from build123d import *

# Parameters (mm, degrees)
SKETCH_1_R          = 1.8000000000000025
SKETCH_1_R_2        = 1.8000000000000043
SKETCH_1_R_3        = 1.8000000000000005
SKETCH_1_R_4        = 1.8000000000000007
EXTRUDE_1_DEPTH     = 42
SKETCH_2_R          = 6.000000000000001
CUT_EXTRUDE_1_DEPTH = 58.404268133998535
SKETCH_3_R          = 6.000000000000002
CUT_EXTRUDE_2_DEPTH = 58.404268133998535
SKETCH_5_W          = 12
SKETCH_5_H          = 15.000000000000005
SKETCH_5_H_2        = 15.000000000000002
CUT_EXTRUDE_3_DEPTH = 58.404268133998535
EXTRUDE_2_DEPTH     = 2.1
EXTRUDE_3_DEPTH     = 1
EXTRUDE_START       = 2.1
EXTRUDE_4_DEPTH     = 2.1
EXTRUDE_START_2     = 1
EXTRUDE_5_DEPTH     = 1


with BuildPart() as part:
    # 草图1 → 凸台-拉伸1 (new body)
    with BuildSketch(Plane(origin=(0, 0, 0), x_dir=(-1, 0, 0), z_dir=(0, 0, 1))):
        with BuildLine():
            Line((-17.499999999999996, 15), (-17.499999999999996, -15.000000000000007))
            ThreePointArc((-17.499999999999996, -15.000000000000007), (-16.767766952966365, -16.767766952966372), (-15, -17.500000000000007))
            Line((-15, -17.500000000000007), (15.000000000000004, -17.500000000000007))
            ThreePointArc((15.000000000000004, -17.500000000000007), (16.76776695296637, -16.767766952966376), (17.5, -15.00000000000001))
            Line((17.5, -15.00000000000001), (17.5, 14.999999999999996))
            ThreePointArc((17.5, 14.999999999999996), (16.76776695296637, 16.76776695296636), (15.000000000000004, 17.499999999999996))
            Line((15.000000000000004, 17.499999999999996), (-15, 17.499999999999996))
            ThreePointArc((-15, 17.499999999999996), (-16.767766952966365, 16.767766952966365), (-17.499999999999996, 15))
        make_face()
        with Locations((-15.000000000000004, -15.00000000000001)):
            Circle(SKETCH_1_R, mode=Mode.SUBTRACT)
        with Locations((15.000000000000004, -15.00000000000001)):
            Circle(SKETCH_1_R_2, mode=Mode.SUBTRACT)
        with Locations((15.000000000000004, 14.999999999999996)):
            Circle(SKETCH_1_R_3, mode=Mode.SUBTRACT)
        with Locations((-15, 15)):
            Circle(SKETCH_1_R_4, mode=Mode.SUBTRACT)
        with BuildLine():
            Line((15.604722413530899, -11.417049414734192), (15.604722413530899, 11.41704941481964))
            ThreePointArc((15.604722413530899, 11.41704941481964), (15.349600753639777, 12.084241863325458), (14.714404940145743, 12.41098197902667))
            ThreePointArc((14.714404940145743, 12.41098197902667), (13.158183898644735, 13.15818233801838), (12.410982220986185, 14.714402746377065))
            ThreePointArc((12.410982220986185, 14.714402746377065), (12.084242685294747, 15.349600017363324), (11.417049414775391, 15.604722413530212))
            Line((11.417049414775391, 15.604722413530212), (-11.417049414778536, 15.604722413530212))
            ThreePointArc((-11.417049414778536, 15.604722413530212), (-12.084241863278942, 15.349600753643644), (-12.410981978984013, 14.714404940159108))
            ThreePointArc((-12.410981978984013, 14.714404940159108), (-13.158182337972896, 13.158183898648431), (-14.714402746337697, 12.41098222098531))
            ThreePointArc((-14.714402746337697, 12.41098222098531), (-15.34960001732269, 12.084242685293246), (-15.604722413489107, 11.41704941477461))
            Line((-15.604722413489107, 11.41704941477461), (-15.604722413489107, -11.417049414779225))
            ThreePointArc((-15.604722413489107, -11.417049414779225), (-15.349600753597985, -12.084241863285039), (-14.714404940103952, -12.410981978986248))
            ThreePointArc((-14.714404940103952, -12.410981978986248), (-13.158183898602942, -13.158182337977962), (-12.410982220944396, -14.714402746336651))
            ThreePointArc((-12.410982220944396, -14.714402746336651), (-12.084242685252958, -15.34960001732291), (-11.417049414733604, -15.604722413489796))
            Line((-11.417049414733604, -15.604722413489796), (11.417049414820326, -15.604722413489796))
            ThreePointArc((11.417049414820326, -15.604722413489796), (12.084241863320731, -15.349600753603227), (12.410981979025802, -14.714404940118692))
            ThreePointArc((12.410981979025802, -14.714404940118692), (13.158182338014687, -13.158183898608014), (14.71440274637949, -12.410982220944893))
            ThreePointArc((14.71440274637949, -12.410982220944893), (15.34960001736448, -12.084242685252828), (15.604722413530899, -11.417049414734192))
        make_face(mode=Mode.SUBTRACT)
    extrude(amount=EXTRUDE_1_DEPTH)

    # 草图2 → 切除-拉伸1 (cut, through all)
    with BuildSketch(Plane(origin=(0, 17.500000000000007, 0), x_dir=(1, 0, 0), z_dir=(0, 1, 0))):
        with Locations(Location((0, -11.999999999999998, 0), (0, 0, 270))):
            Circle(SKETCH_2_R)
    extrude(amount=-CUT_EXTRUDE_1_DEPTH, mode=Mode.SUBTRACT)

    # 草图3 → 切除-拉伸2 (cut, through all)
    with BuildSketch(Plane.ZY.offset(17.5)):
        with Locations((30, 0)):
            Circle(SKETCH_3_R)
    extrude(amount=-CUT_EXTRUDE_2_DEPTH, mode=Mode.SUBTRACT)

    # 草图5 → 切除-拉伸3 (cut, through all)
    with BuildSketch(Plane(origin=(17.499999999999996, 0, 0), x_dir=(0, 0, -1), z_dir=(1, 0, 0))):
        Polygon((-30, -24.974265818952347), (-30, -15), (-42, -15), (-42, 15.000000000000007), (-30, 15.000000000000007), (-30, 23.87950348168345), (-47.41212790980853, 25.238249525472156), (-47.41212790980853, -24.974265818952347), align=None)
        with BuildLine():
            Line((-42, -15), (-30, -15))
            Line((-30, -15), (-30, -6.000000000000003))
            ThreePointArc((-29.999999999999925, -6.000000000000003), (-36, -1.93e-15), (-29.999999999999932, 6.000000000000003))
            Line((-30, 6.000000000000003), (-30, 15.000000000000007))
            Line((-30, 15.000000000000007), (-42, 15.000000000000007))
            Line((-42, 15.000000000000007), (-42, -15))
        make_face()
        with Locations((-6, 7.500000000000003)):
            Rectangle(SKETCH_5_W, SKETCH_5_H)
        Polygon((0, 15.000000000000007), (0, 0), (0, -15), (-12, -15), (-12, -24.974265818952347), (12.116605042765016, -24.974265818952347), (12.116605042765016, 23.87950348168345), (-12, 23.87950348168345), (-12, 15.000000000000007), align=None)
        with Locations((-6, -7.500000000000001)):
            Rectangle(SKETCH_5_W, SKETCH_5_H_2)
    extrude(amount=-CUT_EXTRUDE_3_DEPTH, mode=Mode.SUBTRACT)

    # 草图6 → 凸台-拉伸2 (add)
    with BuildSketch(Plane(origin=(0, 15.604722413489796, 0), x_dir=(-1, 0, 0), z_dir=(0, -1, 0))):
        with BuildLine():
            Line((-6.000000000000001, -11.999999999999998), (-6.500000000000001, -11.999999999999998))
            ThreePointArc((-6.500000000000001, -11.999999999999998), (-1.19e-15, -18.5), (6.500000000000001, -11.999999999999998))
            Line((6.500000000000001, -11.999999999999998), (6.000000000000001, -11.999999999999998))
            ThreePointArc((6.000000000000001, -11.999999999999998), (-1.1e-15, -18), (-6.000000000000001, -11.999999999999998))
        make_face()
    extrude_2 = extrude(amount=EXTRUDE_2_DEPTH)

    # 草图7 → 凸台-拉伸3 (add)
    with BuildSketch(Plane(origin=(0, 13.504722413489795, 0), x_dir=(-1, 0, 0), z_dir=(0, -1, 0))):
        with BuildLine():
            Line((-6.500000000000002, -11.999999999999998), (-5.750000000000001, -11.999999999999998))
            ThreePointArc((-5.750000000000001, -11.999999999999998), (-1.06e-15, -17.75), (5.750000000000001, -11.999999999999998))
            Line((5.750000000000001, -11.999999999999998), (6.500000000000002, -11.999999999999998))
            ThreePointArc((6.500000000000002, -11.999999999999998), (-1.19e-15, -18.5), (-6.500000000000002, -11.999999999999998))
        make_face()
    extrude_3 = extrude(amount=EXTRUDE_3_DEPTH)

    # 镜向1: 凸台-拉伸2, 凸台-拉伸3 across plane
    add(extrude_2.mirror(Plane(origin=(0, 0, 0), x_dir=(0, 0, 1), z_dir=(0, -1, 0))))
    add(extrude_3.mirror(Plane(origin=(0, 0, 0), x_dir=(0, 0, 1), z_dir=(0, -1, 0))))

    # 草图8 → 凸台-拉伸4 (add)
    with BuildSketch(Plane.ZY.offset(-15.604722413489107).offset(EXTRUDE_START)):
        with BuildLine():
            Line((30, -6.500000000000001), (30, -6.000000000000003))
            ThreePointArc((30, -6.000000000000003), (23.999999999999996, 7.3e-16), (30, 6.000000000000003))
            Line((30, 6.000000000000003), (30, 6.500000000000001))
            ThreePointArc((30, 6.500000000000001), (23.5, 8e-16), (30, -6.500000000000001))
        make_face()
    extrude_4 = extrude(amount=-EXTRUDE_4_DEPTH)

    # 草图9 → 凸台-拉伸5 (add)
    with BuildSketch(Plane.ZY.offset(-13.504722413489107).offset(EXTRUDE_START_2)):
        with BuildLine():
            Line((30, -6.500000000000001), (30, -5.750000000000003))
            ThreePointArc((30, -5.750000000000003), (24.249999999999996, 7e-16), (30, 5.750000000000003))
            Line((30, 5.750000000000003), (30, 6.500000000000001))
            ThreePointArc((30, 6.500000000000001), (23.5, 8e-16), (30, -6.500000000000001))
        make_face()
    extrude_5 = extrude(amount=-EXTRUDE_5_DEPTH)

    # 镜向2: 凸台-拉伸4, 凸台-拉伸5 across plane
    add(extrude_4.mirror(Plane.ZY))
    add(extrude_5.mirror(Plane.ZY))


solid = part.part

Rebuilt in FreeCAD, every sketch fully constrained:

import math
import FreeCAD as App
import Part
import Sketcher

V = App.Vector


def add_polygon(sketch, points):
    """Adds a closed chain of lines whose ends are joined by coincident constraints."""
    first, n = sketch.GeometryCount, len(points)
    for a, b in zip(points, points[1:] + points[:1]):
        sketch.addGeometry(Part.LineSegment(App.Vector(*a, 0), App.Vector(*b, 0)), False)
    for i in range(n):
        sketch.addConstraint(Sketcher.Constraint("Coincident", first + i, 2, first + (i + 1) % n, 1))

doc = App.newDocument("Part")
params = doc.addObject("Spreadsheet::Sheet", "Params")
for row, (alias, value) in enumerate([
    ("sketch1_diameter", "3.6 mm"),
    ("sketch1_radius", "2.5 mm"),
    ("sketch1_width", "30 mm"),
    ("pad1_length", "42 mm"),
    ("sketch2_diameter", "12 mm"),
    ("sketch3_diameter", "12 mm"),
    ("sketch4_radius", "6 mm"),
    ("sketch5_radius", "6 mm"),
    ("sketch5_radius2", "6.5 mm"),
    ("pad2_length", "2.1 mm"),
    ("sketch6_radius", "6.5 mm"),
    ("sketch6_radius2", "5.75 mm"),
    ("pad3_length", "1 mm"),
    ("sketch7_radius", "6 mm"),
    ("sketch7_radius2", "6.5 mm"),
    ("pad4_length", "2.1 mm"),
    ("sketch8_radius", "6.5 mm"),
    ("sketch8_radius2", "5.75 mm"),
    ("pad5_length", "1 mm"),
], start=1):
    params.set(f"A{row}", alias)
    params.set(f"B{row}", "=" + value)
    params.setAlias(f"B{row}", alias)

body = doc.addObject("PartDesign::Body", "Body")

sketch1 = body.newObject("Sketcher::SketchObject", "Sketch")
sketch1.AttachmentSupport = (doc.getObject("XY_Plane"), [""])
sketch1.MapMode = "FlatFace"
sketch1.addGeometry([
    Part.LineSegment(V(17.5, -15, 0), V(17.5, 15, 0)),
    Part.ArcOfCircle(Part.Circle(V(15, 15, 0), V(0, 0, 1), 2.5), math.radians(0), math.radians(90)),
    Part.LineSegment(V(15, 17.5, 0), V(-15, 17.5, 0)),
    Part.ArcOfCircle(Part.Circle(V(-15, 15, 0), V(0, 0, 1), 2.5), math.radians(90), math.radians(180)),
    Part.LineSegment(V(-17.5, 15, 0), V(-17.5, -15, 0)),
    Part.ArcOfCircle(Part.Circle(V(-15, -15, 0), V(0, 0, 1), 2.5), math.radians(180), math.radians(270)),
    Part.LineSegment(V(-15, -17.5, 0), V(15, -17.5, 0)),
    Part.ArcOfCircle(Part.Circle(V(15, -15, 0), V(0, 0, 1), 2.5), math.radians(-90), math.radians(0)),
    Part.Circle(V(15, 15, 0), V(0, 0, 1), 1.8),
    Part.Circle(V(-15, 15, 0), V(0, 0, 1), 1.8),
    Part.Circle(V(15, -15, 0), V(0, 0, 1), 1.8),
    Part.LineSegment(V(-15.604722, -11.417049, 0), V(-15.604722, 11.417049, 0)),
    Part.ArcOfCircle(Part.Circle(V(-14.604774, 11.417061, 0), V(0, 0, 1), 0.999949), math.radians(96.294265), math.radians(180.000669)),
    Part.ArcOfCircle(Part.Circle(V(-15, 15, 0), V(0, 0, 1), 2.604722), math.radians(-83.705094), math.radians(-6.294858)),
    Part.ArcOfCircle(Part.Circle(V(-11.417061, 14.604774, 0), V(0, 0, 1), 0.999949), math.radians(89.999331), math.radians(173.705609)),
    Part.LineSegment(V(-11.417049, 15.604722, 0), V(11.417049, 15.604722, 0)),
    Part.ArcOfCircle(Part.Circle(V(11.417061, 14.604774, 0), V(0, 0, 1), 0.999949), math.radians(6.294265), math.radians(90.000669)),
    Part.ArcOfCircle(Part.Circle(V(15, 15, 0), V(0, 0, 1), 2.604722), math.radians(-173.705094), math.radians(-96.294858)),
    Part.ArcOfCircle(Part.Circle(V(14.604774, 11.417061, 0), V(0, 0, 1), 0.999949), math.radians(-0.000669), math.radians(83.705609)),
    Part.LineSegment(V(15.604722, 11.417049, 0), V(15.604722, -11.417049, 0)),
    Part.ArcOfCircle(Part.Circle(V(14.604774, -11.417061, 0), V(0, 0, 1), 0.999949), math.radians(-83.705735), math.radians(0.000669)),
    Part.ArcOfCircle(Part.Circle(V(15, -15, 0), V(0, 0, 1), 2.604722), math.radians(96.294906), math.radians(173.705142)),
    Part.ArcOfCircle(Part.Circle(V(11.417061, -14.604774, 0), V(0, 0, 1), 0.999949), math.radians(-90.000669), math.radians(-6.294391)),
    Part.LineSegment(V(11.417049, -15.604722, 0), V(-11.417049, -15.604722, 0)),
    Part.ArcOfCircle(Part.Circle(V(-11.417061, -14.604774, 0), V(0, 0, 1), 0.999949), math.radians(-173.705735), math.radians(-89.999331)),
    Part.ArcOfCircle(Part.Circle(V(-15, -15, 0), V(0, 0, 1), 2.604722), math.radians(6.294906), math.radians(83.705142)),
    Part.ArcOfCircle(Part.Circle(V(-14.604774, -11.417061, 0), V(0, 0, 1), 0.999949), math.radians(179.999331), math.radians(263.705609)),
    Part.Circle(V(-15, -15, 0), V(0, 0, 1), 1.8),
], False)
sketch1.addConstraint([
    Sketcher.Constraint("Tangent", 0, 2, 1, 1),
    Sketcher.Constraint("Tangent", 1, 2, 2, 1),
    Sketcher.Constraint("Tangent", 2, 2, 3, 1),
    Sketcher.Constraint("Tangent", 3, 2, 4, 1),
    Sketcher.Constraint("Tangent", 4, 2, 5, 1),
    Sketcher.Constraint("Tangent", 5, 2, 6, 1),
    Sketcher.Constraint("Tangent", 6, 2, 7, 1),
    Sketcher.Constraint("Tangent", 7, 2, 0, 1),
    Sketcher.Constraint("Coincident", 11, 2, 12, 2),
    Sketcher.Constraint("Coincident", 12, 1, 13, 1),
    Sketcher.Constraint("Coincident", 13, 2, 14, 2),
    Sketcher.Constraint("Coincident", 14, 1, 15, 1),
    Sketcher.Constraint("Coincident", 15, 2, 16, 2),
    Sketcher.Constraint("Coincident", 16, 1, 17, 1),
    Sketcher.Constraint("Coincident", 17, 2, 18, 2),
    Sketcher.Constraint("Coincident", 18, 1, 19, 1),
    Sketcher.Constraint("Coincident", 19, 2, 20, 2),
    Sketcher.Constraint("Coincident", 20, 1, 21, 1),
    Sketcher.Constraint("Coincident", 21, 2, 22, 2),
    Sketcher.Constraint("Coincident", 22, 1, 23, 1),
    Sketcher.Constraint("Coincident", 23, 2, 24, 2),
    Sketcher.Constraint("Coincident", 24, 1, 25, 1),
    Sketcher.Constraint("Coincident", 25, 2, 26, 2),
    Sketcher.Constraint("Coincident", 26, 1, 11, 1),
    Sketcher.Constraint("Vertical", 0),
    Sketcher.Constraint("Horizontal", 2),
    Sketcher.Constraint("Vertical", 4),
    Sketcher.Constraint("Horizontal", 6),
    Sketcher.Constraint("Vertical", 11),
    Sketcher.Constraint("Horizontal", 15),
    Sketcher.Constraint("Vertical", 19),
    Sketcher.Constraint("Horizontal", 23),
    Sketcher.Constraint("Coincident", 8, 3, 1, 3),
    Sketcher.Constraint("Coincident", 9, 3, 3, 3),
    Sketcher.Constraint("Coincident", 10, 3, 7, 3),
    Sketcher.Constraint("Coincident", 13, 3, 3, 3),
    Sketcher.Constraint("Coincident", 17, 3, 1, 3),
    Sketcher.Constraint("Coincident", 21, 3, 7, 3),
    Sketcher.Constraint("Coincident", 25, 3, 5, 3),
    Sketcher.Constraint("Coincident", 27, 3, 5, 3),
    Sketcher.Constraint("Equal", 1, 3),
    Sketcher.Constraint("Equal", 3, 5),
    Sketcher.Constraint("Equal", 5, 7),
    Sketcher.Constraint("Equal", 8, 9),
    Sketcher.Constraint("Equal", 9, 10),
    Sketcher.Constraint("Equal", 12, 14),
    Sketcher.Constraint("Equal", 14, 16),
    Sketcher.Constraint("Equal", 13, 17),
    Sketcher.Constraint("Equal", 16, 18),
    Sketcher.Constraint("Equal", 18, 20),
    Sketcher.Constraint("Equal", 17, 21),
    Sketcher.Constraint("Equal", 20, 22),
    Sketcher.Constraint("Equal", 22, 24),
    Sketcher.Constraint("Equal", 21, 25),
    Sketcher.Constraint("Equal", 24, 26),
    Sketcher.Constraint("Equal", 10, 27),
    Sketcher.Constraint("Symmetric", 1, 3, 5, 3, -1, 1),
    Sketcher.Constraint("Symmetric", 11, 2, 19, 2, -1, 1),
    Sketcher.Constraint("Symmetric", 14, 1, 22, 1, -1, 1),
    Sketcher.Constraint("Horizontal", 12, 1, 17, 2),
    Sketcher.Constraint("Horizontal", 11, 2, 18, 1),
    Sketcher.Constraint("Horizontal", 20, 1, 25, 2),
    Sketcher.Constraint("Horizontal", 19, 2, 26, 1),
    Sketcher.Constraint("Vertical", 16, 1, 21, 2),
    Sketcher.Constraint("Vertical", 15, 2, 22, 1),
    Sketcher.Constraint("Vertical", 14, 1, 23, 2),
    Sketcher.Constraint("Vertical", 13, 2, 24, 1),
    Sketcher.Constraint("Equal", 6, 0),
    Sketcher.Constraint("Equal", 23, 11),
    Sketcher.Constraint("Diameter", 8, 3.6),
    Sketcher.Constraint("Radius", 1, 2.5),
    Sketcher.Constraint("DistanceX", 2, 2, 2, 1, 30.0),
    Sketcher.Constraint("Radius", 12, 0.999949),
    Sketcher.Constraint("DistanceX", 15, 1, 15, 2, 22.834099),
    Sketcher.Constraint("Radius", 13, 2.604722),
    Sketcher.Constraint("DistanceY", -1, 1, 12, 3, 11.417061),
    Sketcher.Constraint("DistanceX", 14, 3, -1, 1, 11.417061),
    Sketcher.Constraint("DistanceX", 13, 2, -1, 1, 12.410982),
    Sketcher.Constraint("DistanceY", -1, 1, 17, 2, 12.410982),
    Sketcher.Constraint("DistanceX", -1, 1, 21, 2, 12.410982),
    Sketcher.Constraint("DistanceY", 25, 2, -1, 1, 12.410982),
])
sketch1.setExpression("Constraints[69]", "Params.sketch1_diameter")
sketch1.setExpression("Constraints[70]", "Params.sketch1_radius")
sketch1.setExpression("Constraints[71]", "Params.sketch1_width")
pad1 = body.newObject("PartDesign::Pad", "Pad")
pad1.Profile = sketch1
pad1.setExpression("Length", "Params.pad1_length")

sketch2 = body.newObject("Sketcher::SketchObject", "Sketch001")
sketch2.AttachmentSupport = (doc.getObject("XZ_Plane"), [""])
sketch2.MapMode = "FlatFace"
sketch2.AttachmentOffset = App.Placement(V(0, 0, -17.5), App.Rotation())
sketch2.addGeometry(Part.Circle(V(0, 12, 0), V(0, 0, 1), 6), False)
sketch2.addConstraint([
    Sketcher.Constraint("PointOnObject", 0, 3, -2),
    Sketcher.Constraint("Diameter", 0, 12.0),
    Sketcher.Constraint("DistanceY", -1, 1, 0, 3, 12.0),
])
sketch2.setExpression("Constraints[1]", "Params.sketch2_diameter")
pocket1 = body.newObject("PartDesign::Pocket", "Pocket")
pocket1.Profile = sketch2
pocket1.Type = "ThroughAll"
pocket1.Reversed = True

sketch3 = body.newObject("Sketcher::SketchObject", "Sketch002")
sketch3.AttachmentSupport = (doc.getObject("YZ_Plane"), [""])
sketch3.MapMode = "FlatFace"
sketch3.AttachmentOffset = App.Placement(V(0, 0, -17.5), App.Rotation())
sketch3.addGeometry(Part.Circle(V(0, 30, 0), V(0, 0, 1), 6), False)
sketch3.addConstraint([
    Sketcher.Constraint("PointOnObject", 0, 3, -2),
    Sketcher.Constraint("Diameter", 0, 12.0),
    Sketcher.Constraint("DistanceY", -1, 1, 0, 3, 30.0),
])
sketch3.setExpression("Constraints[1]", "Params.sketch3_diameter")
pocket2 = body.newObject("PartDesign::Pocket", "Pocket001")
pocket2.Profile = sketch3
pocket2.Type = "ThroughAll"
pocket2.Reversed = True

sketch4 = body.newObject("Sketcher::SketchObject", "Sketch003")
sketch4.AttachmentSupport = (doc.getObject("YZ_Plane"), [""])
sketch4.MapMode = "FlatFace"
sketch4.AttachmentOffset = App.Placement(V(0, 0, 17.5), App.Rotation())
sketch4.addGeometry(Part.LineSegment(V(-24.974266, 30, 0), V(-6, 30, 0)), False)
sketch4.addGeometry(Part.ArcOfCircle(Part.Circle(V(0, 30, 0), V(0, 0, 1), 6), math.radians(0), math.radians(180)), False)
sketch4.addGeometry(Part.LineSegment(V(6, 30, 0), V(23.879503, 30, 0)), False)
sketch4.addGeometry(Part.LineSegment(V(23.879503, 30, 0), V(25.23825, 47.412128, 0)), False)
sketch4.addGeometry(Part.LineSegment(V(25.23825, 47.412128, 0), V(-24.974266, 47.412128, 0)), False)
sketch4.addGeometry(Part.LineSegment(V(-24.974266, 47.412128, 0), V(-24.974266, 30, 0)), False)
add_polygon(sketch4, [(-24.974266, 12), (-24.974266, -12.116605), (23.879503, -12.116605), (23.879503, 12)])
sketch4.addConstraint([
    Sketcher.Constraint("Coincident", 0, 2, 1, 2),
    Sketcher.Constraint("Coincident", 1, 1, 2, 1),
    Sketcher.Constraint("Coincident", 2, 2, 3, 1),
    Sketcher.Constraint("Coincident", 3, 2, 4, 1),
    Sketcher.Constraint("Coincident", 4, 2, 5, 1),
    Sketcher.Constraint("Coincident", 5, 2, 0, 1),
    Sketcher.Constraint("Horizontal", 0),
    Sketcher.Constraint("Horizontal", 2),
    Sketcher.Constraint("Horizontal", 4),
    Sketcher.Constraint("Vertical", 5),
    Sketcher.Constraint("Vertical", 6),
    Sketcher.Constraint("Horizontal", 7),
    Sketcher.Constraint("Vertical", 8),
    Sketcher.Constraint("Horizontal", 9),
    Sketcher.Constraint("Symmetric", 0, 2, 1, 1, -2),
    Sketcher.Constraint("Horizontal", 1, 3, 0, 2),
    Sketcher.Constraint("Vertical", 5, 2, 6, 2),
    Sketcher.Constraint("Vertical", 2, 2, 7, 2),
    Sketcher.Constraint("Radius", 1, 6.0),
    Sketcher.Constraint("DistanceY", -1, 1, 1, 3, 30.0),
    Sketcher.Constraint("DistanceY", -1, 1, 8, 2, 12.0),
    Sketcher.Constraint("DistanceX", 7, 1, 7, 2, 48.853769),
    Sketcher.Constraint("Distance", 3, 17.465062),
    Sketcher.Constraint("DistanceX", 0, 1, 0, 2, 18.974266),
    Sketcher.Constraint("DistanceX", 4, 2, 4, 1, 50.212515),
    Sketcher.Constraint("DistanceY", 6, 2, 6, 1, 24.116605),
])
sketch4.setExpression("Constraints[22]", "Params.sketch4_radius")
pocket3 = body.newObject("PartDesign::Pocket", "Pocket002")
pocket3.Profile = sketch4
pocket3.Type = "ThroughAll"

sketch5 = body.newObject("Sketcher::SketchObject", "Sketch004")
sketch5.AttachmentSupport = (doc.getObject("XZ_Plane"), [""])
sketch5.MapMode = "FlatFace"
sketch5.AttachmentOffset = App.Placement(V(0, 0, -15.604722), App.Rotation())
sketch5.addGeometry([
    Part.LineSegment(V(6, 12, 0), V(6.5, 12, 0)),
    Part.ArcOfCircle(Part.Circle(V(0, 12, 0), V(0, 0, 1), 6.5), math.radians(0), math.radians(180)),
    Part.LineSegment(V(-6.5, 12, 0), V(-6, 12, 0)),
    Part.ArcOfCircle(Part.Circle(V(0, 12, 0), V(0, 0, 1), 6), math.radians(0), math.radians(180)),
], False)
sketch5.addConstraint([
    Sketcher.Constraint("Coincident", 0, 2, 1, 1),
    Sketcher.Constraint("Coincident", 1, 2, 2, 1),
    Sketcher.Constraint("Coincident", 2, 2, 3, 2),
    Sketcher.Constraint("Coincident", 3, 1, 0, 1),
    Sketcher.Constraint("Horizontal", 0),
    Sketcher.Constraint("Horizontal", 2),
    Sketcher.Constraint("Coincident", 3, 3, 1, 3),
    Sketcher.Constraint("Symmetric", 0, 2, 1, 2, -2),
    Sketcher.Constraint("Horizontal", 3, 3, 0, 2),
    Sketcher.Constraint("Radius", 3, 6.0),
    Sketcher.Constraint("Radius", 1, 6.5),
    Sketcher.Constraint("DistanceY", -1, 1, 1, 3, 12.0),
])
sketch5.setExpression("Constraints[9]", "Params.sketch5_radius")
sketch5.setExpression("Constraints[10]", "Params.sketch5_radius2")
pad2 = body.newObject("PartDesign::Pad", "Pad001")
pad2.Profile = sketch5
pad2.setExpression("Length", "Params.pad2_length")

sketch6 = body.newObject("Sketcher::SketchObject", "Sketch005")
sketch6.AttachmentSupport = (doc.getObject("XZ_Plane"), [""])
sketch6.MapMode = "FlatFace"
sketch6.AttachmentOffset = App.Placement(V(0, 0, -13.504722), App.Rotation())
sketch6.addGeometry([
    Part.LineSegment(V(5.75, 12, 0), V(6.5, 12, 0)),
    Part.ArcOfCircle(Part.Circle(V(0, 12, 0), V(0, 0, 1), 6.5), math.radians(0), math.radians(180)),
    Part.LineSegment(V(-6.5, 12, 0), V(-5.75, 12, 0)),
    Part.ArcOfCircle(Part.Circle(V(0, 12, 0), V(0, 0, 1), 5.75), math.radians(0), math.radians(180)),
], False)
sketch6.addConstraint([
    Sketcher.Constraint("Coincident", 0, 2, 1, 1),
    Sketcher.Constraint("Coincident", 1, 2, 2, 1),
    Sketcher.Constraint("Coincident", 2, 2, 3, 2),
    Sketcher.Constraint("Coincident", 3, 1, 0, 1),
    Sketcher.Constraint("Horizontal", 0),
    Sketcher.Constraint("Horizontal", 2),
    Sketcher.Constraint("Coincident", 3, 3, 1, 3),
    Sketcher.Constraint("Symmetric", 0, 2, 1, 2, -2),
    Sketcher.Constraint("Horizontal", 3, 3, 0, 2),
    Sketcher.Constraint("Radius", 1, 6.5),
    Sketcher.Constraint("Radius", 3, 5.75),
    Sketcher.Constraint("DistanceY", -1, 1, 1, 3, 12.0),
])
sketch6.setExpression("Constraints[9]", "Params.sketch6_radius")
sketch6.setExpression("Constraints[10]", "Params.sketch6_radius2")
pad3 = body.newObject("PartDesign::Pad", "Pad002")
pad3.Profile = sketch6
pad3.setExpression("Length", "Params.pad3_length")
doc.recompute()

mirrored = body.newObject("PartDesign::Mirrored", "Mirrored")
mirrored.Originals = [pad2, pad3]
mirrored.MirrorPlane = (doc.getObject("XZ_Plane"), [""])
body.Tip = mirrored

sketch7 = body.newObject("Sketcher::SketchObject", "Sketch006")
sketch7.AttachmentSupport = (doc.getObject("YZ_Plane"), [""])
sketch7.MapMode = "FlatFace"
sketch7.AttachmentOffset = App.Placement(V(0, 0, 13.504722), App.Rotation())
sketch7.addGeometry([
    Part.LineSegment(V(-6.5, 30, 0), V(-6, 30, 0)),
    Part.ArcOfCircle(Part.Circle(V(0, 30, 0), V(0, 0, 1), 6), math.radians(180), math.radians(360)),
    Part.LineSegment(V(6, 30, 0), V(6.5, 30, 0)),
    Part.ArcOfCircle(Part.Circle(V(0, 30, 0), V(0, 0, 1), 6.5), math.radians(180), math.radians(360)),
], False)
sketch7.addConstraint([
    Sketcher.Constraint("Coincident", 0, 2, 1, 1),
    Sketcher.Constraint("Coincident", 1, 2, 2, 1),
    Sketcher.Constraint("Coincident", 2, 2, 3, 2),
    Sketcher.Constraint("Coincident", 3, 1, 0, 1),
    Sketcher.Constraint("Horizontal", 0),
    Sketcher.Constraint("Horizontal", 2),
    Sketcher.Constraint("Coincident", 3, 3, 1, 3),
    Sketcher.Constraint("Symmetric", 0, 2, 1, 2, -2),
    Sketcher.Constraint("Horizontal", 3, 3, 0, 2),
    Sketcher.Constraint("Radius", 1, 6.0),
    Sketcher.Constraint("Radius", 3, 6.5),
    Sketcher.Constraint("DistanceY", -1, 1, 1, 3, 30.0),
])
sketch7.setExpression("Constraints[9]", "Params.sketch7_radius")
sketch7.setExpression("Constraints[10]", "Params.sketch7_radius2")
pad4 = body.newObject("PartDesign::Pad", "Pad003")
pad4.Profile = sketch7
pad4.setExpression("Length", "Params.pad4_length")

sketch8 = body.newObject("Sketcher::SketchObject", "Sketch007")
sketch8.AttachmentSupport = (doc.getObject("YZ_Plane"), [""])
sketch8.MapMode = "FlatFace"
sketch8.AttachmentOffset = App.Placement(V(0, 0, 12.504722), App.Rotation())
sketch8.addGeometry([
    Part.LineSegment(V(-6.5, 30, 0), V(-5.75, 30, 0)),
    Part.ArcOfCircle(Part.Circle(V(0, 30, 0), V(0, 0, 1), 5.75), math.radians(180), math.radians(360)),
    Part.LineSegment(V(5.75, 30, 0), V(6.5, 30, 0)),
    Part.ArcOfCircle(Part.Circle(V(0, 30, 0), V(0, 0, 1), 6.5), math.radians(180), math.radians(360)),
], False)
sketch8.addConstraint([
    Sketcher.Constraint("Coincident", 0, 2, 1, 1),
    Sketcher.Constraint("Coincident", 1, 2, 2, 1),
    Sketcher.Constraint("Coincident", 2, 2, 3, 2),
    Sketcher.Constraint("Coincident", 3, 1, 0, 1),
    Sketcher.Constraint("Horizontal", 0),
    Sketcher.Constraint("Horizontal", 2),
    Sketcher.Constraint("Coincident", 3, 3, 1, 3),
    Sketcher.Constraint("Symmetric", 0, 2, 1, 2, -2),
    Sketcher.Constraint("Horizontal", 3, 3, 0, 2),
    Sketcher.Constraint("Radius", 3, 6.5),
    Sketcher.Constraint("Radius", 1, 5.75),
    Sketcher.Constraint("DistanceY", -1, 1, 1, 3, 30.0),
])
sketch8.setExpression("Constraints[9]", "Params.sketch8_radius")
sketch8.setExpression("Constraints[10]", "Params.sketch8_radius2")
pad5 = body.newObject("PartDesign::Pad", "Pad004")
pad5.Profile = sketch8
pad5.setExpression("Length", "Params.pad5_length")
doc.recompute()

mirrored2 = body.newObject("PartDesign::Mirrored", "Mirrored001")
mirrored2.Originals = [pad4, pad5]
mirrored2.MirrorPlane = (doc.getObject("YZ_Plane"), [""])
body.Tip = mirrored2

doc.recompute()
